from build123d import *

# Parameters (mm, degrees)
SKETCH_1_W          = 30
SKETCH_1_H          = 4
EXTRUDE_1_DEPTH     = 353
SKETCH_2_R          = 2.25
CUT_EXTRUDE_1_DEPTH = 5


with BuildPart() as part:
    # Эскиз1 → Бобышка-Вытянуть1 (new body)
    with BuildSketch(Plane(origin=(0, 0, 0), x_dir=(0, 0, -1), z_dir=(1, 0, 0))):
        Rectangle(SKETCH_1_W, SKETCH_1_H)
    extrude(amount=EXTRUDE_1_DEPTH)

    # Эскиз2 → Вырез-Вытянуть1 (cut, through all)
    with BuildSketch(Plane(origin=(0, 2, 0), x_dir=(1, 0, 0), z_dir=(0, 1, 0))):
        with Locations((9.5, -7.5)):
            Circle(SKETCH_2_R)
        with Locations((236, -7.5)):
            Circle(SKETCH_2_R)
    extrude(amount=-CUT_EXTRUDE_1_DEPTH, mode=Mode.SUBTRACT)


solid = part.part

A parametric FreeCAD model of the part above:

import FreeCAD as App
import Part
import Sketcher
Q = App.Units.Quantity

doc = App.newDocument("Part")
body = doc.addObject("PartDesign::Body", "Body")

sketch1 = doc.addObject("Sketcher::SketchObject", "Sketch")
body.addObject(sketch1)
sketch1.AttachmentSupport = (doc.YZ_Plane, [""])
sketch1.MapMode = "FlatFace"
sketch1.addGeometry([
    Part.LineSegment(App.Vector(2, 15, 0), App.Vector(-2, 15, 0)),
    Part.LineSegment(App.Vector(-2, 15, 0), App.Vector(-2, -15, 0)),
    Part.LineSegment(App.Vector(-2, -15, 0), App.Vector(2, -15, 0)),
    Part.LineSegment(App.Vector(2, -15, 0), App.Vector(2, 15, 0)),
], False)
sketch1.addConstraint([
    Sketcher.Constraint("Coincident", 0, 2, 1, 1),
    Sketcher.Constraint("Coincident", 1, 2, 2, 1),
    Sketcher.Constraint("Coincident", 2, 2, 3, 1),
    Sketcher.Constraint("Coincident", 3, 2, 0, 1),
    Sketcher.Constraint("Horizontal", 0),
    Sketcher.Constraint("Vertical", 1),
    Sketcher.Constraint("Horizontal", 2),
    Sketcher.Constraint("Vertical", 3),
    Sketcher.Constraint("Symmetric", 0, 2, 2, 2, -1, 1),
    Sketcher.Constraint("DistanceX", 0, 2, 0, 1, Q("4 mm")),
    Sketcher.Constraint("DistanceY", 1, 2, 1, 1, Q("30 mm")),
])
pad1 = doc.addObject("PartDesign::Pad", "Pad")
body.addObject(pad1)
pad1.Profile = sketch1
pad1.Length = 353

sketch2 = doc.addObject("Sketcher::SketchObject", "Sketch001")
body.addObject(sketch2)
sketch2.AttachmentSupport = (doc.XZ_Plane, [""])
sketch2.MapMode = "FlatFace"
sketch2.AttachmentOffset = App.Placement(App.Vector(0, 0, -2), App.Rotation())
sketch2.addGeometry([
    Part.Circle(App.Vector(9.5, 7.5, 0), App.Vector(0, 0, 1), 2.2),
    Part.Circle(App.Vector(236, 7.5, 0), App.Vector(0, 0, 1), 2.2),
], False)
sketch2.addConstraint([
    Sketcher.Constraint("Equal", 0, 1),
    Sketcher.Constraint("Horizontal", 0, 3, 1, 3),
    Sketcher.Constraint("Diameter", 0, Q("4.5 mm")),
    Sketcher.Constraint("DistanceX", -1, 1, 1, 3, Q("236 mm")),
    Sketcher.Constraint("DistanceX", -1, 1, 0, 3, Q("9.5 mm")),
    Sketcher.Constraint("DistanceY", -1, 1, 0, 3, Q("7.5 mm")),
])
pocket1 = doc.addObject("PartDesign::Pocket", "Pocket")
body.addObject(pocket1)
pocket1.Profile = sketch2
pocket1.Type = "ThroughAll"
pocket1.Reversed = True

doc.recompute()
